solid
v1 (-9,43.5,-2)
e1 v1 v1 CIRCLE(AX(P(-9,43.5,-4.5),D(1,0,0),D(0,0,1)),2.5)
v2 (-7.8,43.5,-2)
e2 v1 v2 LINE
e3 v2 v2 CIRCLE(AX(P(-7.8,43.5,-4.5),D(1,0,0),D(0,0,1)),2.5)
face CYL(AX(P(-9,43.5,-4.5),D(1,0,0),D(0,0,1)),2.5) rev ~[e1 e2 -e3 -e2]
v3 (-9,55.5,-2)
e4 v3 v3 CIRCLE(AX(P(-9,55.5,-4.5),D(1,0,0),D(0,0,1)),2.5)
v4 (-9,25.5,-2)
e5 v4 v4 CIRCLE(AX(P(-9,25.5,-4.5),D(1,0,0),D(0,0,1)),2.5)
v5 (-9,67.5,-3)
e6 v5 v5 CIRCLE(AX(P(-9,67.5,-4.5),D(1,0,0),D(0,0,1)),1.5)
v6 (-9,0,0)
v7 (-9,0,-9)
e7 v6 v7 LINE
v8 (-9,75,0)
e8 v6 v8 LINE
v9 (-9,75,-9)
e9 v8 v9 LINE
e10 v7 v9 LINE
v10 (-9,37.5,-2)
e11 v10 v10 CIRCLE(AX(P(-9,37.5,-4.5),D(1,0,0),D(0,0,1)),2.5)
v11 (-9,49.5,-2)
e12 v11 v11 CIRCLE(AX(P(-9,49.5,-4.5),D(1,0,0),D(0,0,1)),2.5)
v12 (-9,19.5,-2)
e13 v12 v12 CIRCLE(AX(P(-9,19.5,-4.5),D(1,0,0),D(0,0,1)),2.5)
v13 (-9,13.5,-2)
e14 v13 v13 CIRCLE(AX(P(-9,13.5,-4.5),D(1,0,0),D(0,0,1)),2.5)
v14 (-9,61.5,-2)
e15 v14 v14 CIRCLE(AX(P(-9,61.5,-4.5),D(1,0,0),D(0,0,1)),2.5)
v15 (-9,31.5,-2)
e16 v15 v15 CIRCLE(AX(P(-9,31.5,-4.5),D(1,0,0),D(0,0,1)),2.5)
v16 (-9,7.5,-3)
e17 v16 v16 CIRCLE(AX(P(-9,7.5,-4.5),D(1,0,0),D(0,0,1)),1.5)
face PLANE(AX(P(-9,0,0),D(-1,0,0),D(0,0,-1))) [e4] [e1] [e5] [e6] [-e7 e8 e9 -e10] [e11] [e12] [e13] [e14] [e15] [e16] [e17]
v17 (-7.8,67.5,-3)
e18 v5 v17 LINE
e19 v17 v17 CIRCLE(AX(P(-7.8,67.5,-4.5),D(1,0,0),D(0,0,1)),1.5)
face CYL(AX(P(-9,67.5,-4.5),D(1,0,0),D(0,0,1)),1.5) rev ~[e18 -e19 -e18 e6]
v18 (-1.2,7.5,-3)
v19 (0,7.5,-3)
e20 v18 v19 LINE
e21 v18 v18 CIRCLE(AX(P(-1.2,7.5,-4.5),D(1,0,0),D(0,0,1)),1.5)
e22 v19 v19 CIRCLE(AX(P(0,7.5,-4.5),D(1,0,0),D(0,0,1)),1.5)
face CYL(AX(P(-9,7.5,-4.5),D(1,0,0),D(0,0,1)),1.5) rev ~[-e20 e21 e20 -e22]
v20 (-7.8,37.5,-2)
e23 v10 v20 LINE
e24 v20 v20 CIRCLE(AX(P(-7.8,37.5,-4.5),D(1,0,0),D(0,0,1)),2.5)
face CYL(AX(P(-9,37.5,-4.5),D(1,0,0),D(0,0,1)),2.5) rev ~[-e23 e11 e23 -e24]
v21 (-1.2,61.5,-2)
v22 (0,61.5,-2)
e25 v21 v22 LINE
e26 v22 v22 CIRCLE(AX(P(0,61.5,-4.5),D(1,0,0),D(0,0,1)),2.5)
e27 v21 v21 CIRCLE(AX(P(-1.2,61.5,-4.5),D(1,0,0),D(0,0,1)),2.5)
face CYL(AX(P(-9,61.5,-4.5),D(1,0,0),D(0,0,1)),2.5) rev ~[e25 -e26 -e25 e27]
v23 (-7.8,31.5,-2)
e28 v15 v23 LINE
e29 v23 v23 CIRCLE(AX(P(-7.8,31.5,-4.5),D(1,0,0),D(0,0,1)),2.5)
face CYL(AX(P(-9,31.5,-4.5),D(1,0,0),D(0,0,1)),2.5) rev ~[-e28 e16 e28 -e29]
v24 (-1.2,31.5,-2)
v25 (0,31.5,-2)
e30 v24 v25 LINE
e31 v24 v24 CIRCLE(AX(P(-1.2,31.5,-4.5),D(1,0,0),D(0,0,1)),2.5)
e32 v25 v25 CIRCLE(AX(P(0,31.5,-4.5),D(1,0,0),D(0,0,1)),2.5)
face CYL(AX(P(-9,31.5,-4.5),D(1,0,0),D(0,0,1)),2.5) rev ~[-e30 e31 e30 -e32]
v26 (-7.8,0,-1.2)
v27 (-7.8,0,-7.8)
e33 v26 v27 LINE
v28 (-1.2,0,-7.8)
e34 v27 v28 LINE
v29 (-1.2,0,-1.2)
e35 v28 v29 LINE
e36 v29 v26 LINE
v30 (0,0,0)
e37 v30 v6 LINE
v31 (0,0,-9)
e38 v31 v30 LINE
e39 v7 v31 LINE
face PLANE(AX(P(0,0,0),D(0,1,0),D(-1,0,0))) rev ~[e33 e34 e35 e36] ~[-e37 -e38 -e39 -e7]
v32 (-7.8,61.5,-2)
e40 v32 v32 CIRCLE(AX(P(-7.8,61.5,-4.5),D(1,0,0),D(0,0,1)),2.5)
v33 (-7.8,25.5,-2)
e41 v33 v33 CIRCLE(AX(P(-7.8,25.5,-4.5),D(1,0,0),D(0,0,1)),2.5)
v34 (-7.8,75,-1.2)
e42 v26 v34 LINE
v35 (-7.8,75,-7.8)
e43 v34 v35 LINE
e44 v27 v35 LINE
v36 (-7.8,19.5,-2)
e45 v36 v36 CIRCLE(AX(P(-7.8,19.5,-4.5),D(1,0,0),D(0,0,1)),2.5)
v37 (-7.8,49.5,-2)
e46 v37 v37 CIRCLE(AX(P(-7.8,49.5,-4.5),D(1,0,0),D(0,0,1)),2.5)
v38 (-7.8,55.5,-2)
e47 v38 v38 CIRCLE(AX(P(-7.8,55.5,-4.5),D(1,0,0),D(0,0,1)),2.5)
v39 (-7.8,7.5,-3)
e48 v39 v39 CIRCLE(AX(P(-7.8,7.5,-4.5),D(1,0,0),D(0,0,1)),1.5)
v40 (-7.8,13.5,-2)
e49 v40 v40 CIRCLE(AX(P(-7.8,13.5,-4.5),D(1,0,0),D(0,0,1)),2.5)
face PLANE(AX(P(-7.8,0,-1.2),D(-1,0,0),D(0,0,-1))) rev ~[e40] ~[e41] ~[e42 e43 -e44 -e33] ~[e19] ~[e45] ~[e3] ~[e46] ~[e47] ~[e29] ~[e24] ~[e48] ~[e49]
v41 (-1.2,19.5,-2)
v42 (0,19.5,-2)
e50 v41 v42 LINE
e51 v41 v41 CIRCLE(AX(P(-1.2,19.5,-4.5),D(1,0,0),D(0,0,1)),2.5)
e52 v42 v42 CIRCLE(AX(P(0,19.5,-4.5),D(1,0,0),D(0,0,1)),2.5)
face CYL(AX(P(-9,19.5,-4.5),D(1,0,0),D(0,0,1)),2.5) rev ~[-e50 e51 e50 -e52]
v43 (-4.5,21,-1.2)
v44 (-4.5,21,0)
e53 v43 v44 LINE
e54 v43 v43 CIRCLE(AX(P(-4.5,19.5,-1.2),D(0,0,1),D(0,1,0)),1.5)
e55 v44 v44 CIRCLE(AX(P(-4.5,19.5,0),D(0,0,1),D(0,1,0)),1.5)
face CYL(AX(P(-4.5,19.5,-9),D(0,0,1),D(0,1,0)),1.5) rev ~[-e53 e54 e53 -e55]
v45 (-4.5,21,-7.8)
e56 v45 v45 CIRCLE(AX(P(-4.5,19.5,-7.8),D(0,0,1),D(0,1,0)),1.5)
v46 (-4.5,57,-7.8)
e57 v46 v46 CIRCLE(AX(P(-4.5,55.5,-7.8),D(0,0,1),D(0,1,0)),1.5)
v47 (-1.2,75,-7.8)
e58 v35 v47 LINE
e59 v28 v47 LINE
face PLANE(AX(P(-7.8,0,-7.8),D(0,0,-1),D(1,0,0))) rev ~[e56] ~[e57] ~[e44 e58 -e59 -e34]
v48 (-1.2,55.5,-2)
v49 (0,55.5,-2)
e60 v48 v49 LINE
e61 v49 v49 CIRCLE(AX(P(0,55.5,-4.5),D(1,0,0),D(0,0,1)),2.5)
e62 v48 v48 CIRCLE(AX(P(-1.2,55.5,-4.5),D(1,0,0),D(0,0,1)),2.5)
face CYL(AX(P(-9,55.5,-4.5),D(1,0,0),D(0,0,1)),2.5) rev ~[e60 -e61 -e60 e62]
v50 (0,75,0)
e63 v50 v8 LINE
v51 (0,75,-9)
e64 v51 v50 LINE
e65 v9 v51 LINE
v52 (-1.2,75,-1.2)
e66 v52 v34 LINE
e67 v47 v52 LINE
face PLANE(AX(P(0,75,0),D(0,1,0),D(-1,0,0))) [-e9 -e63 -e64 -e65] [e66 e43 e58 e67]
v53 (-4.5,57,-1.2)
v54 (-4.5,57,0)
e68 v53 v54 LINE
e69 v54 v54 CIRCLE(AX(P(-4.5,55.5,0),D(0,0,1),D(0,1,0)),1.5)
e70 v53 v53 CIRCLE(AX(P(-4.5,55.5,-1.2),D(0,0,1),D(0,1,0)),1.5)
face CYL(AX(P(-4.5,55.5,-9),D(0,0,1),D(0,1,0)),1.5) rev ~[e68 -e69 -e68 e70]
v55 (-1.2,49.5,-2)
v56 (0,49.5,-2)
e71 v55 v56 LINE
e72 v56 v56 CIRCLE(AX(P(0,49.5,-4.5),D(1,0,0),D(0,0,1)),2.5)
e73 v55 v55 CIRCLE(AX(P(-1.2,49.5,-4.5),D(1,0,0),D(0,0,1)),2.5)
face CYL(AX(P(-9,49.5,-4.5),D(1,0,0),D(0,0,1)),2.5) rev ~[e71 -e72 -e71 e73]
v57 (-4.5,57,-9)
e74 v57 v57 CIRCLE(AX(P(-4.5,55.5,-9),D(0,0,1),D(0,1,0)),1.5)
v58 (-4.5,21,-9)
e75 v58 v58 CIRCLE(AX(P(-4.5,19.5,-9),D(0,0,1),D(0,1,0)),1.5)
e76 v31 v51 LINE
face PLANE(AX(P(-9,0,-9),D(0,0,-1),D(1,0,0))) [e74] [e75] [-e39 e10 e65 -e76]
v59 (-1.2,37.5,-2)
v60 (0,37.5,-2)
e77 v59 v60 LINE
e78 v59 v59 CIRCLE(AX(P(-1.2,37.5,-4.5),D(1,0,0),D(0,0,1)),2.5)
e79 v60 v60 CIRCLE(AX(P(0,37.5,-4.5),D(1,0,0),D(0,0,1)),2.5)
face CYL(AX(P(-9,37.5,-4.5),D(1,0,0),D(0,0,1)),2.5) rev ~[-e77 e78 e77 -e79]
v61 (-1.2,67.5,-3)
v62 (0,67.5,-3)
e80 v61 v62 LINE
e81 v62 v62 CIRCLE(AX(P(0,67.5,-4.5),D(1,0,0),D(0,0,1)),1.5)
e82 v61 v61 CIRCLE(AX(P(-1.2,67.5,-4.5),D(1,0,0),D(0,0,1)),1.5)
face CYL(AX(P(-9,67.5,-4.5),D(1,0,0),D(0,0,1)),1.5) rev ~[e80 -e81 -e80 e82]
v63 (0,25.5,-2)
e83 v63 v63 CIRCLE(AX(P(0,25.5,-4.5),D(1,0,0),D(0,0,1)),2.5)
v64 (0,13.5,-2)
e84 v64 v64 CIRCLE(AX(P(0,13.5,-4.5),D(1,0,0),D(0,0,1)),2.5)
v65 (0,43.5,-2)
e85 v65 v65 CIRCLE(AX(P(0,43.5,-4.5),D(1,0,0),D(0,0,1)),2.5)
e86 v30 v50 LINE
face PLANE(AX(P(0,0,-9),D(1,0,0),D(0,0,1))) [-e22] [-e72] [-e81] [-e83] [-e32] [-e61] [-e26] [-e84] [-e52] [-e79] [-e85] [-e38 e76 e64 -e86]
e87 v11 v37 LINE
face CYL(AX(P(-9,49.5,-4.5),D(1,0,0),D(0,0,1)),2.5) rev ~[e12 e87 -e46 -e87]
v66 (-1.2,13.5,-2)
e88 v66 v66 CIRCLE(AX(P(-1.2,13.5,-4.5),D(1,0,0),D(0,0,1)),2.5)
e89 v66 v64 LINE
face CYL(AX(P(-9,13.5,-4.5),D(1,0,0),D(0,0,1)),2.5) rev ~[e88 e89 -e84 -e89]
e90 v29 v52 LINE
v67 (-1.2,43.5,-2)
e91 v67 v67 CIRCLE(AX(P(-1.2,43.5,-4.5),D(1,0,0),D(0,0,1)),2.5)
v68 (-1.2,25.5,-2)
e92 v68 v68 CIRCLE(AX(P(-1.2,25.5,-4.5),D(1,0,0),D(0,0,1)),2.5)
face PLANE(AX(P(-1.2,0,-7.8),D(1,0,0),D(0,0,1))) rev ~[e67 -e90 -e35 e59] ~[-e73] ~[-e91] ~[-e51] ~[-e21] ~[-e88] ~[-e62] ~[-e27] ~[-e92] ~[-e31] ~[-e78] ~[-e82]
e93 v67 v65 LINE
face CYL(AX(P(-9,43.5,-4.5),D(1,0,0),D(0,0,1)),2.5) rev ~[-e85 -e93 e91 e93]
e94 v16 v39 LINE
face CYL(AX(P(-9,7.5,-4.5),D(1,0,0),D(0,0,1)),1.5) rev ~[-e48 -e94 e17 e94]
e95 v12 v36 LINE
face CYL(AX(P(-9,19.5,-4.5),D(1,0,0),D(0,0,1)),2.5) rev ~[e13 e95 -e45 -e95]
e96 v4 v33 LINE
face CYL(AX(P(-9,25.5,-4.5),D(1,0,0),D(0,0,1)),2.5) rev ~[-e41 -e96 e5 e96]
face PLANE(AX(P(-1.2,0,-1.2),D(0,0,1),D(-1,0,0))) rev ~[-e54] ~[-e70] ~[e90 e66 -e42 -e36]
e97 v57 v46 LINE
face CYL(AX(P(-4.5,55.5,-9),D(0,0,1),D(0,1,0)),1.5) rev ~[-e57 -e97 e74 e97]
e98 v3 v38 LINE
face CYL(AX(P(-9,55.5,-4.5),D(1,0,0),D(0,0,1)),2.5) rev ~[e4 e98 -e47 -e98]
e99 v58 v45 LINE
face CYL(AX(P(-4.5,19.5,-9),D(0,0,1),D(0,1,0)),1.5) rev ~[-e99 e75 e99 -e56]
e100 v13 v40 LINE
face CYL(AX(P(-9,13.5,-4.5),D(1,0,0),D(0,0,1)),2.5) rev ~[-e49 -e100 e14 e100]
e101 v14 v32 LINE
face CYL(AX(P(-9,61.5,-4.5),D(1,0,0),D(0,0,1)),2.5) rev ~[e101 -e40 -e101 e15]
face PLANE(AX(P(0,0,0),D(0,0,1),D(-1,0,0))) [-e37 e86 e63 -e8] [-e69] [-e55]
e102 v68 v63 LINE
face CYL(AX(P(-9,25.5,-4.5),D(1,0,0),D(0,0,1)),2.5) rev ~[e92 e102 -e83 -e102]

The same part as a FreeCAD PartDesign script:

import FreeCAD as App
import Part
import Sketcher
Q = App.Units.Quantity


def add_polygon(sketch, points):
    """Adds a closed chain of lines whose ends are joined by coincident constraints."""
    first, n = sketch.GeometryCount, len(points)
    for a, b in zip(points, points[1:] + points[:1]):
        sketch.addGeometry(Part.LineSegment(App.Vector(*a, 0), App.Vector(*b, 0)), False)
    for i in range(n):
        sketch.addConstraint(Sketcher.Constraint("Coincident", first + i, 2, first + (i + 1) % n, 1))

doc = App.newDocument("Part")
body = doc.addObject("PartDesign::Body", "Body")

# Sketch on XZ plane
sketch1 = body.newObject("Sketcher::SketchObject", "Sketch")
sketch1.AttachmentSupport = (doc.getObject("XZ_Plane"), [""])
sketch1.MapMode = "FlatFace"
add_polygon(sketch1, [(-9, 0), (0, 0), (0, -9), (-9, -9)])  # lines 0-3
add_polygon(sketch1, [(-1, -8), (-1, -1), (-8, -1), (-8, -8)])  # lines 4-7
sketch1.addConstraint(Sketcher.Constraint("Horizontal", 0))
sketch1.addConstraint(Sketcher.Constraint("Vertical", 1))
sketch1.addConstraint(Sketcher.Constraint("Horizontal", 2))
sketch1.addConstraint(Sketcher.Constraint("Vertical", 3))
sketch1.addConstraint(Sketcher.Constraint("Vertical", 4))
sketch1.addConstraint(Sketcher.Constraint("Horizontal", 5))
sketch1.addConstraint(Sketcher.Constraint("Vertical", 6))
sketch1.addConstraint(Sketcher.Constraint("Horizontal", 7))
sketch1.addConstraint(Sketcher.Constraint("Coincident", 0, 2, -1, 1))
sketch1.addConstraint(Sketcher.Constraint("Equal", 2, 1))
sketch1.addConstraint(Sketcher.Constraint("Equal", 7, 4))
sketch1.addConstraint(Sketcher.Constraint("DistanceX", 0, 1, 0, 2, Q("9 mm")))
sketch1.addConstraint(Sketcher.Constraint("DistanceX", 5, 2, 5, 1, Q("6.6 mm")))
sketch1.addConstraint(Sketcher.Constraint("DistanceX", 4, 2, -1, 1, Q("1.2 mm")))
sketch1.addConstraint(Sketcher.Constraint("DistanceY", 4, 2, -1, 1, Q("1.2 mm")))
pad1 = body.newObject("PartDesign::Pad", "Pad")
pad1.Profile = sketch1
pad1.Length = 75
pad1.Reversed = True

# Sketch on YZ plane
sketch2 = body.newObject("Sketcher::SketchObject", "Sketch001")
sketch2.AttachmentSupport = (doc.getObject("YZ_Plane"), [""])
sketch2.MapMode = "FlatFace"
sketch2.AttachmentOffset = App.Placement(App.Vector(0, 0, -9), App.Rotation())
sketch2.addGeometry(Part.Circle(App.Vector(7.5, -4.5, 0), App.Vector(0, 0, 1), 1.5), False)
sketch2.addGeometry(Part.Circle(App.Vector(67.5, -4.5, 0), App.Vector(0, 0, 1), 1.5), False)
sketch2.addConstraint(Sketcher.Constraint("Equal", 0, 1))
sketch2.addConstraint(Sketcher.Constraint("Horizontal", 0, 3, 1, 3))
sketch2.addConstraint(Sketcher.Constraint("Diameter", 0, Q("3 mm")))
sketch2.addConstraint(Sketcher.Constraint("DistanceX", 0, 3, 1, 3, Q("60 mm")))
sketch2.addConstraint(Sketcher.Constraint("DistanceX", -1, 1, 0, 3, Q("7.5 mm")))
sketch2.addConstraint(Sketcher.Constraint("DistanceY", 0, 3, -1, 1, Q("4.5 mm")))
doc.recompute()
hole = body.newObject("PartDesign::Hole", "Hole")
hole.Profile = sketch2
hole.ThreadType = "None"
hole.Diameter = 3
hole.DepthType = "ThroughAll"
hole.Reversed = True

# Sketch on XY plane
sketch3 = body.newObject("Sketcher::SketchObject", "Sketch002")
sketch3.AttachmentSupport = (doc.getObject("XY_Plane"), [""])
sketch3.MapMode = "FlatFace"
sketch3.AttachmentOffset = App.Placement(App.Vector(0, 0, -9), App.Rotation())
sketch3.addGeometry(Part.Circle(App.Vector(-4.5, 19.5, 0), App.Vector(0, 0, 1), 1.5), False)
sketch3.addGeometry(Part.Circle(App.Vector(-4.5, 55.5, 0), App.Vector(0, 0, 1), 1.5), False)
sketch3.addConstraint(Sketcher.Constraint("Equal", 0, 1))
sketch3.addConstraint(Sketcher.Constraint("Vertical", 0, 3, 1, 3))
sketch3.addConstraint(Sketcher.Constraint("Diameter", 0, Q("3 mm")))
sketch3.addConstraint(Sketcher.Constraint("DistanceY", 0, 3, 1, 3, Q("36 mm")))
sketch3.addConstraint(Sketcher.Constraint("DistanceX", 0, 3, -1, 1, Q("4.5 mm")))
sketch3.addConstraint(Sketcher.Constraint("DistanceY", -1, 1, 0, 3, Q("19.5 mm")))
doc.recompute()
hole2 = body.newObject("PartDesign::Hole", "Hole001")
hole2.Profile = sketch3
hole2.ThreadType = "None"
hole2.Diameter = 3
hole2.DepthType = "ThroughAll"
hole2.Reversed = True

# Sketch on YZ plane
sketch4 = body.newObject("Sketcher::SketchObject", "Sketch003")
sketch4.AttachmentSupport = (doc.getObject("YZ_Plane"), [""])
sketch4.MapMode = "FlatFace"
sketch4.AttachmentOffset = App.Placement(App.Vector(0, 0, -9), App.Rotation())
sketch4.addGeometry(Part.Circle(App.Vector(61.5, -4.5, 0), App.Vector(0, 0, 1), 2.5), False)
sketch4.addGeometry(Part.Circle(App.Vector(55.5, -4.5, 0), App.Vector(0, 0, 1), 2.5), False)
sketch4.addGeometry(Part.Circle(App.Vector(49.5, -4.5, 0), App.Vector(0, 0, 1), 2.5), False)
sketch4.addGeometry(Part.Circle(App.Vector(43.5, -4.5, 0), App.Vector(0, 0, 1), 2.5), False)
sketch4.addGeometry(Part.Circle(App.Vector(37.5, -4.5, 0), App.Vector(0, 0, 1), 2.5), False)
sketch4.addGeometry(Part.Circle(App.Vector(31.5, -4.5, 0), App.Vector(0, 0, 1), 2.5), False)
sketch4.addGeometry(Part.Circle(App.Vector(25.5, -4.5, 0), App.Vector(0, 0, 1), 2.5), False)
sketch4.addGeometry(Part.Circle(App.Vector(19.5, -4.5, 0), App.Vector(0, 0, 1), 2.5), False)
sketch4.addGeometry(Part.Circle(App.Vector(13.5, -4.5, 0), App.Vector(0, 0, 1), 2.5), False)
sketch4.addConstraint(Sketcher.Constraint("Equal", 0, 1))
sketch4.addConstraint(Sketcher.Constraint("Equal", 1, 2))
sketch4.addConstraint(Sketcher.Constraint("Equal", 2, 3))
sketch4.addConstraint(Sketcher.Constraint("Equal", 3, 4))
sketch4.addConstraint(Sketcher.Constraint("Equal", 4, 5))
sketch4.addConstraint(Sketcher.Constraint("Equal", 5, 6))
sketch4.addConstraint(Sketcher.Constraint("Equal", 6, 7))
sketch4.addConstraint(Sketcher.Constraint("Equal", 7, 8))
sketch4.addConstraint(Sketcher.Constraint("Horizontal", 0, 3, 1, 3))
sketch4.addConstraint(Sketcher.Constraint("Horizontal", 1, 3, 2, 3))
sketch4.addConstraint(Sketcher.Constraint("Horizontal", 2, 3, 3, 3))
sketch4.addConstraint(Sketcher.Constraint("Horizontal", 3, 3, 4, 3))
sketch4.addConstraint(Sketcher.Constraint("Horizontal", 4, 3, 5, 3))
sketch4.addConstraint(Sketcher.Constraint("Horizontal", 5, 3, 6, 3))
sketch4.addConstraint(Sketcher.Constraint("Horizontal", 6, 3, 7, 3))
sketch4.addConstraint(Sketcher.Constraint("Horizontal", 7, 3, 8, 3))
sketch4.addConstraint(Sketcher.Constraint("Diameter", 0, Q("5 mm")))
sketch4.addConstraint(Sketcher.Constraint("DistanceX", 1, 3, 0, 3, Q("6 mm")))
sketch4.addConstraint(Sketcher.Constraint("DistanceX", 2, 3, 1, 3, Q("6 mm")))
sketch4.addConstraint(Sketcher.Constraint("DistanceX", 3, 3, 2, 3, Q("6 mm")))
sketch4.addConstraint(Sketcher.Constraint("DistanceX", 4, 3, 3, 3, Q("6 mm")))
sketch4.addConstraint(Sketcher.Constraint("DistanceX", 5, 3, 4, 3, Q("6 mm")))
sketch4.addConstraint(Sketcher.Constraint("DistanceX", 6, 3, 5, 3, Q("6 mm")))
sketch4.addConstraint(Sketcher.Constraint("DistanceX", 7, 3, 6, 3, Q("6 mm")))
sketch4.addConstraint(Sketcher.Constraint("DistanceX", 8, 3, 7, 3, Q("6 mm")))
sketch4.addConstraint(Sketcher.Constraint("DistanceX", -1, 1, 0, 3, Q("61.5 mm")))
sketch4.addConstraint(Sketcher.Constraint("DistanceY", 0, 3, -1, 1, Q("4.5 mm")))
doc.recompute()
hole3 = body.newObject("PartDesign::Hole", "Hole002")
hole3.Profile = sketch4
hole3.ThreadType = "None"
hole3.Diameter = 5
hole3.DepthType = "ThroughAll"
hole3.Reversed = True

doc.recompute()
